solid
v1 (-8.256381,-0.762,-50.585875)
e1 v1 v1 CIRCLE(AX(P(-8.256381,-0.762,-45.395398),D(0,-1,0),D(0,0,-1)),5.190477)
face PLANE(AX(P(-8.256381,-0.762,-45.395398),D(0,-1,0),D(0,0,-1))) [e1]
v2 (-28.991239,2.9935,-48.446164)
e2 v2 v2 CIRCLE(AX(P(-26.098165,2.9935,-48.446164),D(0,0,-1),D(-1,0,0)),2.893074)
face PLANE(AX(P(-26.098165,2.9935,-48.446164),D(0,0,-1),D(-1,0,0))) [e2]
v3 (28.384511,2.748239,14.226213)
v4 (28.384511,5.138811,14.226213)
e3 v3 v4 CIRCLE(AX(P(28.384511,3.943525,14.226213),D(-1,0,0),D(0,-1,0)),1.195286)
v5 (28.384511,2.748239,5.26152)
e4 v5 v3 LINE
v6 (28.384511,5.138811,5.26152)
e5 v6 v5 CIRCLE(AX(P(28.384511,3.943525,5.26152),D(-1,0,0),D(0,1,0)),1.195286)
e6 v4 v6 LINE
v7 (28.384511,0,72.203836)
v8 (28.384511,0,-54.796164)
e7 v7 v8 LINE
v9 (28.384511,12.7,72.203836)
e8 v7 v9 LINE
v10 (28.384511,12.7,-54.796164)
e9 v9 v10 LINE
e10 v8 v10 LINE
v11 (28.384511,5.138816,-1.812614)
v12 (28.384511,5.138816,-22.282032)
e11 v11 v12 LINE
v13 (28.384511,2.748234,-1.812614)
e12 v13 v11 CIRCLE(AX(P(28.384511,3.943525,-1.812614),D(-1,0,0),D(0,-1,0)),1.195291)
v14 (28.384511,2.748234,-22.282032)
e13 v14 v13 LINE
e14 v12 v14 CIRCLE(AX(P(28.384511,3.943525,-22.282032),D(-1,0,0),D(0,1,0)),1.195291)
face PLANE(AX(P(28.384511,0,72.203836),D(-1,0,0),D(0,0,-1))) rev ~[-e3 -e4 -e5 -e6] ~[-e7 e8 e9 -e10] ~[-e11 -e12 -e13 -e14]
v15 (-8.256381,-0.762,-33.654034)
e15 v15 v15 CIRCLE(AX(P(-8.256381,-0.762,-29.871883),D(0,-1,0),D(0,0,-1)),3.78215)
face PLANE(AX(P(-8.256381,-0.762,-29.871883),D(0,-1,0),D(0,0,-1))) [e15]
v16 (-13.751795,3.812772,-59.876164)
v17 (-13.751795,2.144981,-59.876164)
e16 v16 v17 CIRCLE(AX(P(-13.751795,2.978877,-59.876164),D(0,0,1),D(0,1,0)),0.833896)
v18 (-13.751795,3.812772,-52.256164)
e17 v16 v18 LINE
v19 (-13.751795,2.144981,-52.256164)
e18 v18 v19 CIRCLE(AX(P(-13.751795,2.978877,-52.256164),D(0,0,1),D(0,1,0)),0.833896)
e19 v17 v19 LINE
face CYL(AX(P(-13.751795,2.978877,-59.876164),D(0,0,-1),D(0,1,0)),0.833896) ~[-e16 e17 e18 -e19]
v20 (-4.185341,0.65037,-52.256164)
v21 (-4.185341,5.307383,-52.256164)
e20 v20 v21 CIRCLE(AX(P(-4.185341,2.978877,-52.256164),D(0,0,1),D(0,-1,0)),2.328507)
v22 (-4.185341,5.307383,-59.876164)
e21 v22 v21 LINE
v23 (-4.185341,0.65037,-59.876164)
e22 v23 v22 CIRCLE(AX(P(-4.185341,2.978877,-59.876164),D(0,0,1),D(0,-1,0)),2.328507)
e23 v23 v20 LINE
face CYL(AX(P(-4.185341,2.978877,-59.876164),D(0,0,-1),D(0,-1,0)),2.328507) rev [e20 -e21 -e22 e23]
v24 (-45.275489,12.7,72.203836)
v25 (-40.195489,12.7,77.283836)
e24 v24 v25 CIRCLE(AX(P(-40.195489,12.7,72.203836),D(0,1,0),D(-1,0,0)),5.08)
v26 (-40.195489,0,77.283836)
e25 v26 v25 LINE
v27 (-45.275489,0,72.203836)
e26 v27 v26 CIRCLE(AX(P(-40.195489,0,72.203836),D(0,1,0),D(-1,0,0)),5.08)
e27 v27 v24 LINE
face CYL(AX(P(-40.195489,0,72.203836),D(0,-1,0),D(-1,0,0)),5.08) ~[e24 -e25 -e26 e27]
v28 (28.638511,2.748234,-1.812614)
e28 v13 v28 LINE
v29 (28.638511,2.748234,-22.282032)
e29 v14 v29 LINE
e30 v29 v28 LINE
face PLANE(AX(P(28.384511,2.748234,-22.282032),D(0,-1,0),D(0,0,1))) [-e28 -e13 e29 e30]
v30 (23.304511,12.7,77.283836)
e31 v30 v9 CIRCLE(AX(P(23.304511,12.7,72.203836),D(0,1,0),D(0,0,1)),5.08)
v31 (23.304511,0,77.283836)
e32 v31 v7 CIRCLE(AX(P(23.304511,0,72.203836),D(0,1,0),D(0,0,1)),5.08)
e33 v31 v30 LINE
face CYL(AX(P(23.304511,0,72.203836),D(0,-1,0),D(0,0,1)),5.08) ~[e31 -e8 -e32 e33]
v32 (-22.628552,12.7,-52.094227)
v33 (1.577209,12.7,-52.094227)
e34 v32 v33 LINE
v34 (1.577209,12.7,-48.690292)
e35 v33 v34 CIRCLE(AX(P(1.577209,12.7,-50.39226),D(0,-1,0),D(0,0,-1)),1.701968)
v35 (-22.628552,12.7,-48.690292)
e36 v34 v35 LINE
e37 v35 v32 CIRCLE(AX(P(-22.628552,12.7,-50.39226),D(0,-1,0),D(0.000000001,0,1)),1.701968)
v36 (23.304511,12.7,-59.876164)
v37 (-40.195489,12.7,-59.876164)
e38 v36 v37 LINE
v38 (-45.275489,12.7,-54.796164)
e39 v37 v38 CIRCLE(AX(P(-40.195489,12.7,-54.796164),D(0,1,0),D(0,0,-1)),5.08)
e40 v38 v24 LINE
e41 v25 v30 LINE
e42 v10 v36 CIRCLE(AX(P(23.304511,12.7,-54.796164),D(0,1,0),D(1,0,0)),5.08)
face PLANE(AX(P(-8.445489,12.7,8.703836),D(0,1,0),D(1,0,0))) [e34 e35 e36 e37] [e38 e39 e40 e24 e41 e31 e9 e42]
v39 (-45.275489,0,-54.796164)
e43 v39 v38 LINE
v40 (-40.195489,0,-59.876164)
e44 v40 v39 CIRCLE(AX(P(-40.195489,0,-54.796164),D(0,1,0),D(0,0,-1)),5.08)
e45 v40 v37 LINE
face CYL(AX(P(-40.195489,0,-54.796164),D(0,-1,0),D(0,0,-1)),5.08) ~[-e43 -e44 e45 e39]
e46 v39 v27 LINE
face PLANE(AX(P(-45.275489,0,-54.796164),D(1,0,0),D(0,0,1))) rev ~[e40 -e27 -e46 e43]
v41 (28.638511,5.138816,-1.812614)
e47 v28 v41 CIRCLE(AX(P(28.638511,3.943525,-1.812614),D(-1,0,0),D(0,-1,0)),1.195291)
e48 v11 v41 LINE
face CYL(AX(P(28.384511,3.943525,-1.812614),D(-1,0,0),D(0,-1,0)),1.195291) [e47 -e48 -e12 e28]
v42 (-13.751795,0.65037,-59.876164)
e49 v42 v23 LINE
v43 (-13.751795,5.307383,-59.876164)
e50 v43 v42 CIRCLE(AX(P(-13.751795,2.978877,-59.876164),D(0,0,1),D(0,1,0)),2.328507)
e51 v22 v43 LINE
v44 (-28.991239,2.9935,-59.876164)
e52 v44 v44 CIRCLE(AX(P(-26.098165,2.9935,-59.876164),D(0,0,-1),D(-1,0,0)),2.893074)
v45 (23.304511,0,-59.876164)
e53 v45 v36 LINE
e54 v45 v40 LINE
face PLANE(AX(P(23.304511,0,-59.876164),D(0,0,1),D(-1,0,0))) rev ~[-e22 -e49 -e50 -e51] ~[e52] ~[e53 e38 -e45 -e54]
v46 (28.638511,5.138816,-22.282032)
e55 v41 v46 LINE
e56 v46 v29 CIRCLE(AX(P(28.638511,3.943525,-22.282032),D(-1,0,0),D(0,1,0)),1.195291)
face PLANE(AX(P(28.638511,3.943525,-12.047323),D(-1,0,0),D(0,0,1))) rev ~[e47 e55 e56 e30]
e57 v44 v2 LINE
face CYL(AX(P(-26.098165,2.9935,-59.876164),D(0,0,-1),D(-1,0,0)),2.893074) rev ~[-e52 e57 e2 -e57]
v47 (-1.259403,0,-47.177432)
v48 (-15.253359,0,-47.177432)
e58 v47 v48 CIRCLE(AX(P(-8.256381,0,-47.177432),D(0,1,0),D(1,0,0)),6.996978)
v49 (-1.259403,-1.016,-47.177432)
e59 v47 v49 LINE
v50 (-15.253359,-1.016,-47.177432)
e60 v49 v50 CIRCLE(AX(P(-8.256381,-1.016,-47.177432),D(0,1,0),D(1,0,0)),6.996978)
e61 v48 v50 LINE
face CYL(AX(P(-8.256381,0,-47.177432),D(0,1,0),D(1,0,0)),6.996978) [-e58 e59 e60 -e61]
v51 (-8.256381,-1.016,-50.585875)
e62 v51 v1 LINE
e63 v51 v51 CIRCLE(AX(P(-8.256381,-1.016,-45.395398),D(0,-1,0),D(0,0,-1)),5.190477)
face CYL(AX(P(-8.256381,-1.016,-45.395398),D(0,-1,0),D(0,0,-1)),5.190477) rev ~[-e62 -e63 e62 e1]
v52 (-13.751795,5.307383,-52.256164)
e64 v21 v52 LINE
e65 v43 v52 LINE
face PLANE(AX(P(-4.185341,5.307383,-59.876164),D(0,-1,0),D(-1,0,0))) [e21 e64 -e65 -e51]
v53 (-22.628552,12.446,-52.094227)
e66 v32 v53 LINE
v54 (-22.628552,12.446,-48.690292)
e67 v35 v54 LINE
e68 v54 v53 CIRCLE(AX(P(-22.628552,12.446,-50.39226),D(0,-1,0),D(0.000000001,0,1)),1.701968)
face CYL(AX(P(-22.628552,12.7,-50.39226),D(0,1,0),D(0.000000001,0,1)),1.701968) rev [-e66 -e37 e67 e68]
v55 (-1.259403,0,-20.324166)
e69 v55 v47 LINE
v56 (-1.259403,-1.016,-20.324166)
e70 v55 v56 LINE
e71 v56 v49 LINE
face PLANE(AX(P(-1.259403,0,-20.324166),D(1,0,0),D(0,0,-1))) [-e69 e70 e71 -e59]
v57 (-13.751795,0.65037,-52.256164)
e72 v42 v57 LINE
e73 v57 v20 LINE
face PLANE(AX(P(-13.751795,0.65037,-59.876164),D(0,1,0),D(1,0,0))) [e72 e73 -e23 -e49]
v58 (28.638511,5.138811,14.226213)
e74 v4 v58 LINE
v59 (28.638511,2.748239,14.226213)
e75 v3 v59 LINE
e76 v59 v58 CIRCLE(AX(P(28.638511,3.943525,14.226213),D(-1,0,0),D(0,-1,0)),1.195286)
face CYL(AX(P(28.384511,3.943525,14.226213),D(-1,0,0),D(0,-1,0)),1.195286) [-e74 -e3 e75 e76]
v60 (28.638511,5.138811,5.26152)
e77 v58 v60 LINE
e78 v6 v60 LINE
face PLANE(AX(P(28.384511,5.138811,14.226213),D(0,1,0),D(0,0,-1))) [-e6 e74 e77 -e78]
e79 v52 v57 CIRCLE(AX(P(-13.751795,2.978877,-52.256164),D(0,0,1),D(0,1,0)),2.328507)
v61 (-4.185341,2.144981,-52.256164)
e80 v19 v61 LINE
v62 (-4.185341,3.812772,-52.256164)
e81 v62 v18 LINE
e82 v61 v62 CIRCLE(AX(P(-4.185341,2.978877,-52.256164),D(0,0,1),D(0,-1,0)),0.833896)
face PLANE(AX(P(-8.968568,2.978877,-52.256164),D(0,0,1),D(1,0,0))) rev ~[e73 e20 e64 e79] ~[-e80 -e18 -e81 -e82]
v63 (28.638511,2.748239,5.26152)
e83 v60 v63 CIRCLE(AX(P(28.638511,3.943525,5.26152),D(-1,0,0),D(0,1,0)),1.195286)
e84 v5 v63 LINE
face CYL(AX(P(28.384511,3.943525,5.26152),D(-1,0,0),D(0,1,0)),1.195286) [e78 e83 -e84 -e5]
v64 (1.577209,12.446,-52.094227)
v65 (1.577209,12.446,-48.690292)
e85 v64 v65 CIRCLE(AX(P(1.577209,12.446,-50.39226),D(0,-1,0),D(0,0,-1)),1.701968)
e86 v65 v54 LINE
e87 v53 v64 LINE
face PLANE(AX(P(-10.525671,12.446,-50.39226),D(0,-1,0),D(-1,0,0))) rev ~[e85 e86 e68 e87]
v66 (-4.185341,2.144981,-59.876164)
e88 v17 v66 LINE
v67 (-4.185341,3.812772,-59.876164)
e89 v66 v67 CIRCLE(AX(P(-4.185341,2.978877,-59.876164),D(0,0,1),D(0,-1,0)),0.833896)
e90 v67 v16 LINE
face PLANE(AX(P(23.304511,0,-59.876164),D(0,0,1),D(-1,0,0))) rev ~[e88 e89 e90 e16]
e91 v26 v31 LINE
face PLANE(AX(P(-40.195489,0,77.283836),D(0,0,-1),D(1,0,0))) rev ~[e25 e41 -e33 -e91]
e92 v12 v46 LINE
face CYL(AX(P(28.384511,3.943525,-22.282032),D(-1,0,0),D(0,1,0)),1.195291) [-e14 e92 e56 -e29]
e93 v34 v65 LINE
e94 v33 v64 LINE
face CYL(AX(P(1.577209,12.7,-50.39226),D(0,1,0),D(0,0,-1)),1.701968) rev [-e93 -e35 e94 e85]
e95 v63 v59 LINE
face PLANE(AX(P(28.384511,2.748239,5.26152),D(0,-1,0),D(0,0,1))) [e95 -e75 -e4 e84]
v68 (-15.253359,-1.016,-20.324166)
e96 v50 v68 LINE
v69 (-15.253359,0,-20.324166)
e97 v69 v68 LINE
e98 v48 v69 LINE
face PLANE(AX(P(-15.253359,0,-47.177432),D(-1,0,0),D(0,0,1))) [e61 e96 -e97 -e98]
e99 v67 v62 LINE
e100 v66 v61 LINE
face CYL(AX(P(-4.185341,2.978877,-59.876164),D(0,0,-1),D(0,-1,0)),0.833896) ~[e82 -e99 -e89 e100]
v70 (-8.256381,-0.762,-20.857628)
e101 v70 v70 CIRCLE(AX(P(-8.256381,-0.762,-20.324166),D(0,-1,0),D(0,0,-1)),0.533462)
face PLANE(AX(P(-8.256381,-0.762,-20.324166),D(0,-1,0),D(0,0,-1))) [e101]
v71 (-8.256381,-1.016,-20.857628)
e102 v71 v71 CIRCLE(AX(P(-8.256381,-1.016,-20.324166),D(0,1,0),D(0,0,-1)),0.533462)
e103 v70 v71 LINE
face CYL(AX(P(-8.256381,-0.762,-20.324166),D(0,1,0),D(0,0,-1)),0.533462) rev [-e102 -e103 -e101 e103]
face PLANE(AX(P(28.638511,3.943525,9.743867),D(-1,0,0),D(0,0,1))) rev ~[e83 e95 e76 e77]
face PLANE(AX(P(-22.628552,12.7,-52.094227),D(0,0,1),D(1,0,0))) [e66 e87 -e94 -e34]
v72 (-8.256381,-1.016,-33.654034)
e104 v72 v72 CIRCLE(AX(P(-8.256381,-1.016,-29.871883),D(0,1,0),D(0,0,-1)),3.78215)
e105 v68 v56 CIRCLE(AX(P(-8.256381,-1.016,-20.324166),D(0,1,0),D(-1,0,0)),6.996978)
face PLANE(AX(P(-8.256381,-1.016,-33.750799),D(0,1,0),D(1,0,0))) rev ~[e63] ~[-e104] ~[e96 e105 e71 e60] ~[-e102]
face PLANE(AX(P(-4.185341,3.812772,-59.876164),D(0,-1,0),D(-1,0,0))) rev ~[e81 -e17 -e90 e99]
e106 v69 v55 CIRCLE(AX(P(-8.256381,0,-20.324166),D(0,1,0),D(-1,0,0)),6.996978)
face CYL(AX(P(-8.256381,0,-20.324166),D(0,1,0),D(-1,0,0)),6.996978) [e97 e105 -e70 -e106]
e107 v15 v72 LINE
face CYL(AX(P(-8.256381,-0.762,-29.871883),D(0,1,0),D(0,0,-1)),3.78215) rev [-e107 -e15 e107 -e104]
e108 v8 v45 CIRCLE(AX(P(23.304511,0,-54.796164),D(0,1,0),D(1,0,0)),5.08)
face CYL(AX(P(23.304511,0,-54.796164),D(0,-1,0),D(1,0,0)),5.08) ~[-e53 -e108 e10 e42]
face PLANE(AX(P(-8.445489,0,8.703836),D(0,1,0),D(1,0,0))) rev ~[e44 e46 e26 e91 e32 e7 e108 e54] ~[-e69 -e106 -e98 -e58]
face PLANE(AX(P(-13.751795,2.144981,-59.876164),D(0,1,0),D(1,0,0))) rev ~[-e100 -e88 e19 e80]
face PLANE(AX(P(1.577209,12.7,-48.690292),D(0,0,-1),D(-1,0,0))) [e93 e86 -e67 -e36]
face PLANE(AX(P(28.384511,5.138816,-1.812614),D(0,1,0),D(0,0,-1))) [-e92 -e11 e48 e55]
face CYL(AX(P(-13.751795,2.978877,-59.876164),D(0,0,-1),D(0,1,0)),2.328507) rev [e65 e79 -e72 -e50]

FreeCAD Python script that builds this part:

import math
import FreeCAD as App
import Part
import Sketcher
Q = App.Units.Quantity

doc = App.newDocument("Part")
body = doc.addObject("PartDesign::Body", "Body")

# Sketch on XZ plane
sketch1 = body.newObject("Sketcher::SketchObject", "Sketch")
sketch1.AttachmentSupport = (doc.getObject("XZ_Plane"), [""])
sketch1.MapMode = "FlatFace"
sketch1.addGeometry([
    Part.LineSegment(App.Vector(23, -60, 0), App.Vector(-40, -60, 0)),  # 0
    Part.ArcOfCircle(Part.Circle(App.Vector(-40, -55, 0), App.Vector(0, 0, 1), 5), math.radians(180), math.radians(270)),  # 1
    Part.LineSegment(App.Vector(-45, -55, 0), App.Vector(-45, 72, 0)),  # 2
    Part.ArcOfCircle(Part.Circle(App.Vector(-40, 72, 0), App.Vector(0, 0, 1), 5), math.radians(90), math.radians(180)),  # 3
    Part.LineSegment(App.Vector(-40, 77, 0), App.Vector(23, 77, 0)),  # 4
    Part.ArcOfCircle(Part.Circle(App.Vector(23, 72, 0), App.Vector(0, 0, 1), 5), math.radians(0), math.radians(90)),  # 5
    Part.LineSegment(App.Vector(28, 72, 0), App.Vector(28, -55, 0)),  # 6
    Part.ArcOfCircle(Part.Circle(App.Vector(23, -55, 0), App.Vector(0, 0, 1), 5), math.radians(-90), math.radians(0)),  # 7
], False)
sketch1.addConstraint([
    Sketcher.Constraint("Tangent", 0, 2, 1, 2),
    Sketcher.Constraint("Tangent", 1, 1, 2, 1),
    Sketcher.Constraint("Tangent", 2, 2, 3, 2),
    Sketcher.Constraint("Tangent", 3, 1, 4, 1),
    Sketcher.Constraint("Tangent", 4, 2, 5, 2),
    Sketcher.Constraint("Tangent", 5, 1, 6, 1),
    Sketcher.Constraint("Tangent", 6, 2, 7, 2),
    Sketcher.Constraint("Tangent", 7, 1, 0, 1),
    Sketcher.Constraint("Horizontal", 0),
    Sketcher.Constraint("Vertical", 2),
    Sketcher.Constraint("Horizontal", 4),
    Sketcher.Constraint("Vertical", 6),
    Sketcher.Constraint("Equal", 1, 3),
    Sketcher.Constraint("Equal", 3, 5),
    Sketcher.Constraint("Equal", 5, 7),
    Sketcher.Constraint("Radius", 1, Q("0.2 in")),
    Sketcher.Constraint("DistanceY", 2, 1, 2, 2, Q("5 in")),
    Sketcher.Constraint("DistanceX", 0, 2, 0, 1, Q("2.5 in")),
    Sketcher.Constraint("DistanceX", 1, 3, -1, 1, 40.195489),
    Sketcher.Constraint("DistanceY", 1, 3, -1, 1, 54.796164),
])
pad1 = body.newObject("PartDesign::Pad", "Pad")
pad1.Profile = sketch1
pad1.Length = Q("0.5 in")
pad1.Reversed = True

# Sketch on XZ plane
sketch2 = body.newObject("Sketcher::SketchObject", "Sketch001")
sketch2.AttachmentSupport = (doc.getObject("XZ_Plane"), [""])
sketch2.MapMode = "FlatFace"
sketch2.addGeometry([
    Part.LineSegment(App.Vector(-1, -47, 0), App.Vector(-1, -20, 0)),
    Part.ArcOfCircle(Part.Circle(App.Vector(-8, -20, 0), App.Vector(0, 0, 1), 7), math.radians(0), math.radians(180)),
    Part.LineSegment(App.Vector(-15, -20, 0), App.Vector(-15, -47, 0)),
    Part.ArcOfCircle(Part.Circle(App.Vector(-8, -47, 0), App.Vector(0, 0, 1), 7), math.radians(180), math.radians(360)),
], False)
sketch2.addConstraint([
    Sketcher.Constraint("Tangent", 0, 2, 1, 1),
    Sketcher.Constraint("Tangent", 1, 2, 2, 1),
    Sketcher.Constraint("Tangent", 2, 2, 3, 1),
    Sketcher.Constraint("Tangent", 3, 2, 0, 1),
    Sketcher.Constraint("Vertical", 0),
    Sketcher.Constraint("Vertical", 2),
    Sketcher.Constraint("Radius", 1, 6.996978),
    Sketcher.Constraint("DistanceY", 0, 1, 0, 2, 26.853266),
    Sketcher.Constraint("DistanceX", 1, 3, -1, 1, 8.256381),
    Sketcher.Constraint("DistanceY", 3, 3, -1, 1, 47.177432),
])
pad2 = body.newObject("PartDesign::Pad", "Pad001")
pad2.Profile = sketch2
pad2.Length = Q("0.04 in")

# Sketch on XZ plane
sketch3 = body.newObject("Sketcher::SketchObject", "Sketch002")
sketch3.AttachmentSupport = (doc.getObject("XZ_Plane"), [""])
sketch3.MapMode = "FlatFace"
sketch3.AttachmentOffset = App.Placement(App.Vector(0, 0, 0.04 * 25.4), App.Rotation())
sketch3.addGeometry([
    Part.Circle(App.Vector(-8.3, -29.9, 0), App.Vector(0, 0, 1), 3.8),
    Part.Circle(App.Vector(-8.3, -20.3, 0), App.Vector(0, 0, 1), 0.5),
], False)
sketch3.addConstraint([
    Sketcher.Constraint("Vertical", 0, 3, 1, 3),
    Sketcher.Constraint("Diameter", 0, 7.5643),
    Sketcher.Constraint("Diameter", 1, 1.066924),
    Sketcher.Constraint("DistanceX", 0, 3, -1, 1, 8.256381),
    Sketcher.Constraint("DistanceY", 0, 3, -1, 1, 29.871883),
    Sketcher.Constraint("DistanceY", 1, 3, -1, 1, 20.324166),
])
pocket1 = body.newObject("PartDesign::Pocket", "Pocket")
pocket1.Profile = sketch3
pocket1.Type = "TwoLengths"
pocket1.Length = Q("0.01 in")
pocket1.Length2 = Q("0.01 in")
pocket1.Reversed = True

# Sketch on XZ plane
sketch4 = body.newObject("Sketcher::SketchObject", "Sketch003")
sketch4.AttachmentSupport = (doc.getObject("XZ_Plane"), [""])
sketch4.MapMode = "FlatFace"
sketch4.AttachmentOffset = App.Placement(App.Vector(0, 0, 0.04 * 25.4), App.Rotation())
sketch4.addGeometry(Part.Circle(App.Vector(-8, -45, 0), App.Vector(0, 0, 1), 5), False)
sketch4.addConstraint([
    Sketcher.Constraint("Diameter", 0, 10.380953),
    Sketcher.Constraint("DistanceY", 0, 3, -1, 1, 45.395398),
    Sketcher.Constraint("DistanceX", 0, 3, -1, 1, 8.256381),
])
pocket2 = body.newObject("PartDesign::Pocket", "Pocket001")
pocket2.Profile = sketch4
pocket2.Length = Q("0.01 in")

# Sketch on XZ plane
sketch5 = body.newObject("Sketcher::SketchObject", "Sketch004")
sketch5.AttachmentSupport = (doc.getObject("XZ_Plane"), [""])
sketch5.MapMode = "FlatFace"
sketch5.AttachmentOffset = App.Placement(App.Vector(0, 0, -0.5 * 25.4), App.Rotation())
sketch5.addGeometry([
    Part.LineSegment(App.Vector(1.6, -52.1, 0), App.Vector(-22.6, -52.1, 0)),
    Part.ArcOfCircle(Part.Circle(App.Vector(-22.6, -50.4, 0), App.Vector(0, 0, 1), 1.7), math.radians(90), math.radians(270)),
    Part.LineSegment(App.Vector(-22.6, -48.7, 0), App.Vector(1.6, -48.7, 0)),
    Part.ArcOfCircle(Part.Circle(App.Vector(1.6, -50.4, 0), App.Vector(0, 0, 1), 1.7), math.radians(-90), math.radians(90)),
], False)
sketch5.addConstraint([
    Sketcher.Constraint("Tangent", 0, 2, 1, 2),
    Sketcher.Constraint("Tangent", 1, 1, 2, 1),
    Sketcher.Constraint("Tangent", 2, 2, 3, 2),
    Sketcher.Constraint("Tangent", 3, 1, 0, 1),
    Sketcher.Constraint("Horizontal", 0),
    Sketcher.Constraint("Horizontal", 2),
    Sketcher.Constraint("Radius", 1, 1.701968),
    Sketcher.Constraint("DistanceX", 0, 2, 0, 1, 24.205761),
    Sketcher.Constraint("DistanceX", 1, 3, -1, 1, 22.628552),
    Sketcher.Constraint("DistanceY", 1, 3, -1, 1, 50.39226),
])
pocket3 = body.newObject("PartDesign::Pocket", "Pocket002")
pocket3.Profile = sketch5
pocket3.Length = Q("0.01 in")
pocket3.Reversed = True

# Sketch on XY plane
sketch6 = body.newObject("Sketcher::SketchObject", "Sketch005")
sketch6.AttachmentSupport = (doc.getObject("XY_Plane"), [""])
sketch6.MapMode = "FlatFace"
sketch6.AttachmentOffset = App.Placement(App.Vector(0, 0, -59.876164), App.Rotation())
sketch6.addGeometry(Part.Circle(App.Vector(-26.1, 3, 0), App.Vector(0, 0, 1), 2.9), False)
sketch6.addConstraint([
    Sketcher.Constraint("Diameter", 0, 5.786148),
    Sketcher.Constraint("DistanceY", -1, 1, 0, 3, 2.9935),
    Sketcher.Constraint("DistanceX", 0, 3, -1, 1, 26.098165),
])
pocket4 = body.newObject("PartDesign::Pocket", "Pocket003")
pocket4.Profile = sketch6
pocket4.Length = Q("0.45 in")
pocket4.Reversed = True

# Sketch on XY plane
sketch7 = body.newObject("Sketcher::SketchObject", "Sketch006")
sketch7.AttachmentSupport = (doc.getObject("XY_Plane"), [""])
sketch7.MapMode = "FlatFace"
sketch7.AttachmentOffset = App.Placement(App.Vector(0, 0, -59.876164), App.Rotation())
sketch7.addGeometry([
    Part.LineSegment(App.Vector(-13.8, 5.3, 0), App.Vector(-4.2, 5.3, 0)),  # 0
    Part.ArcOfCircle(Part.Circle(App.Vector(-4.2, 3, 0), App.Vector(0, 0, 1), 2.3), math.radians(-90), math.radians(90)),  # 1
    Part.LineSegment(App.Vector(-4.2, 0.7, 0), App.Vector(-13.8, 0.7, 0)),  # 2
    Part.ArcOfCircle(Part.Circle(App.Vector(-13.8, 3, 0), App.Vector(0, 0, 1), 2.3), math.radians(90), math.radians(270)),  # 3
    Part.LineSegment(App.Vector(-4.2, 3.8, 0), App.Vector(-13.8, 3.8, 0)),  # 4
    Part.ArcOfCircle(Part.Circle(App.Vector(-13.8, 3, 0), App.Vector(0, 0, 1), 0.8), math.radians(90), math.radians(270)),  # 5
    Part.LineSegment(App.Vector(-13.8, 2.1, 0), App.Vector(-4.2, 2.1, 0)),  # 6
    Part.ArcOfCircle(Part.Circle(App.Vector(-4.2, 3, 0), App.Vector(0, 0, 1), 0.8), math.radians(-90), math.radians(90)),  # 7
], False)
sketch7.addConstraint([
    Sketcher.Constraint("Tangent", 0, 2, 1, 2),
    Sketcher.Constraint("Tangent", 1, 1, 2, 1),
    Sketcher.Constraint("Tangent", 2, 2, 3, 2),
    Sketcher.Constraint("Tangent", 3, 1, 0, 1),
    Sketcher.Constraint("Tangent", 4, 2, 5, 1),
    Sketcher.Constraint("Tangent", 5, 2, 6, 1),
    Sketcher.Constraint("Tangent", 6, 2, 7, 1),
    Sketcher.Constraint("Tangent", 7, 2, 4, 1),
    Sketcher.Constraint("Horizontal", 0),
    Sketcher.Constraint("Horizontal", 2),
    Sketcher.Constraint("Horizontal", 4),
    Sketcher.Constraint("Horizontal", 6),
    Sketcher.Constraint("Coincident", 5, 3, 3, 3),
    Sketcher.Constraint("Vertical", 7, 3, 0, 2),
    Sketcher.Constraint("Radius", 1, 2.328507),
    Sketcher.Constraint("Radius", 5, 0.833896),
    Sketcher.Constraint("DistanceX", 0, 1, 0, 2, 9.566455),
    Sketcher.Constraint("DistanceX", 1, 3, -1, 1, 4.185341),
    Sketcher.Constraint("DistanceY", -1, 1, 1, 1, 0.65037),
])
pocket5 = body.newObject("PartDesign::Pocket", "Pocket004")
pocket5.Profile = sketch7
pocket5.Length = Q("0.3 in")
pocket5.Reversed = True

# Sketch on YZ plane
sketch8 = body.newObject("Sketcher::SketchObject", "Sketch007")
sketch8.AttachmentSupport = (doc.getObject("YZ_Plane"), [""])
sketch8.MapMode = "FlatFace"
sketch8.AttachmentOffset = App.Placement(App.Vector(0, 0, 28.384511), App.Rotation())
sketch8.addGeometry([
    Part.LineSegment(App.Vector(5.1, -22.3, 0), App.Vector(5.1, -1.8, 0)),  # 0
    Part.ArcOfCircle(Part.Circle(App.Vector(3.9, -1.8, 0), App.Vector(0, 0, 1), 1.2), math.radians(0), math.radians(180)),  # 1
    Part.LineSegment(App.Vector(2.7, -1.8, 0), App.Vector(2.7, -22.3, 0)),  # 2
    Part.ArcOfCircle(Part.Circle(App.Vector(3.9, -22.3, 0), App.Vector(0, 0, 1), 1.2), math.radians(180), math.radians(360)),  # 3
    Part.LineSegment(App.Vector(5.1, 5.3, 0), App.Vector(5.1, 14.2, 0)),  # 4
    Part.ArcOfCircle(Part.Circle(App.Vector(3.9, 14.2, 0), App.Vector(0, 0, 1), 1.2), math.radians(0), math.radians(180)),  # 5
    Part.LineSegment(App.Vector(2.7, 14.2, 0), App.Vector(2.7, 5.3, 0)),  # 6
    Part.ArcOfCircle(Part.Circle(App.Vector(3.9, 5.3, 0), App.Vector(0, 0, 1), 1.2), math.radians(180), math.radians(360)),  # 7
], False)
sketch8.addConstraint([
    Sketcher.Constraint("Tangent", 0, 2, 1, 1),
    Sketcher.Constraint("Tangent", 1, 2, 2, 1),
    Sketcher.Constraint("Tangent", 2, 2, 3, 1),
    Sketcher.Constraint("Tangent", 3, 2, 0, 1),
    Sketcher.Constraint("Tangent", 4, 2, 5, 1),
    Sketcher.Constraint("Tangent", 5, 2, 6, 1),
    Sketcher.Constraint("Tangent", 6, 2, 7, 1),
    Sketcher.Constraint("Tangent", 7, 2, 4, 1),
    Sketcher.Constraint("Vertical", 0),
    Sketcher.Constraint("Vertical", 2),
    Sketcher.Constraint("Vertical", 4),
    Sketcher.Constraint("Vertical", 6),
    Sketcher.Constraint("Vertical", 3, 3, 5, 3),
    Sketcher.Constraint("Radius", 1, 1.195291),
    Sketcher.Constraint("Radius", 5, 1.195286),
    Sketcher.Constraint("DistanceY", 0, 1, 0, 2, 20.469418),
    Sketcher.Constraint("DistanceY", 4, 1, 4, 2, 8.964692),
    Sketcher.Constraint("DistanceY", -1, 1, 7, 3, 5.26152),
    Sketcher.Constraint("DistanceX", -1, 1, 4, 2, 5.138811),
    Sketcher.Constraint("DistanceY", 1, 3, -1, 1, 1.812614),
])
pad3 = body.newObject("PartDesign::Pad", "Pad002")
pad3.Profile = sketch8
pad3.Length = Q("0.01 in")

doc.recompute()
